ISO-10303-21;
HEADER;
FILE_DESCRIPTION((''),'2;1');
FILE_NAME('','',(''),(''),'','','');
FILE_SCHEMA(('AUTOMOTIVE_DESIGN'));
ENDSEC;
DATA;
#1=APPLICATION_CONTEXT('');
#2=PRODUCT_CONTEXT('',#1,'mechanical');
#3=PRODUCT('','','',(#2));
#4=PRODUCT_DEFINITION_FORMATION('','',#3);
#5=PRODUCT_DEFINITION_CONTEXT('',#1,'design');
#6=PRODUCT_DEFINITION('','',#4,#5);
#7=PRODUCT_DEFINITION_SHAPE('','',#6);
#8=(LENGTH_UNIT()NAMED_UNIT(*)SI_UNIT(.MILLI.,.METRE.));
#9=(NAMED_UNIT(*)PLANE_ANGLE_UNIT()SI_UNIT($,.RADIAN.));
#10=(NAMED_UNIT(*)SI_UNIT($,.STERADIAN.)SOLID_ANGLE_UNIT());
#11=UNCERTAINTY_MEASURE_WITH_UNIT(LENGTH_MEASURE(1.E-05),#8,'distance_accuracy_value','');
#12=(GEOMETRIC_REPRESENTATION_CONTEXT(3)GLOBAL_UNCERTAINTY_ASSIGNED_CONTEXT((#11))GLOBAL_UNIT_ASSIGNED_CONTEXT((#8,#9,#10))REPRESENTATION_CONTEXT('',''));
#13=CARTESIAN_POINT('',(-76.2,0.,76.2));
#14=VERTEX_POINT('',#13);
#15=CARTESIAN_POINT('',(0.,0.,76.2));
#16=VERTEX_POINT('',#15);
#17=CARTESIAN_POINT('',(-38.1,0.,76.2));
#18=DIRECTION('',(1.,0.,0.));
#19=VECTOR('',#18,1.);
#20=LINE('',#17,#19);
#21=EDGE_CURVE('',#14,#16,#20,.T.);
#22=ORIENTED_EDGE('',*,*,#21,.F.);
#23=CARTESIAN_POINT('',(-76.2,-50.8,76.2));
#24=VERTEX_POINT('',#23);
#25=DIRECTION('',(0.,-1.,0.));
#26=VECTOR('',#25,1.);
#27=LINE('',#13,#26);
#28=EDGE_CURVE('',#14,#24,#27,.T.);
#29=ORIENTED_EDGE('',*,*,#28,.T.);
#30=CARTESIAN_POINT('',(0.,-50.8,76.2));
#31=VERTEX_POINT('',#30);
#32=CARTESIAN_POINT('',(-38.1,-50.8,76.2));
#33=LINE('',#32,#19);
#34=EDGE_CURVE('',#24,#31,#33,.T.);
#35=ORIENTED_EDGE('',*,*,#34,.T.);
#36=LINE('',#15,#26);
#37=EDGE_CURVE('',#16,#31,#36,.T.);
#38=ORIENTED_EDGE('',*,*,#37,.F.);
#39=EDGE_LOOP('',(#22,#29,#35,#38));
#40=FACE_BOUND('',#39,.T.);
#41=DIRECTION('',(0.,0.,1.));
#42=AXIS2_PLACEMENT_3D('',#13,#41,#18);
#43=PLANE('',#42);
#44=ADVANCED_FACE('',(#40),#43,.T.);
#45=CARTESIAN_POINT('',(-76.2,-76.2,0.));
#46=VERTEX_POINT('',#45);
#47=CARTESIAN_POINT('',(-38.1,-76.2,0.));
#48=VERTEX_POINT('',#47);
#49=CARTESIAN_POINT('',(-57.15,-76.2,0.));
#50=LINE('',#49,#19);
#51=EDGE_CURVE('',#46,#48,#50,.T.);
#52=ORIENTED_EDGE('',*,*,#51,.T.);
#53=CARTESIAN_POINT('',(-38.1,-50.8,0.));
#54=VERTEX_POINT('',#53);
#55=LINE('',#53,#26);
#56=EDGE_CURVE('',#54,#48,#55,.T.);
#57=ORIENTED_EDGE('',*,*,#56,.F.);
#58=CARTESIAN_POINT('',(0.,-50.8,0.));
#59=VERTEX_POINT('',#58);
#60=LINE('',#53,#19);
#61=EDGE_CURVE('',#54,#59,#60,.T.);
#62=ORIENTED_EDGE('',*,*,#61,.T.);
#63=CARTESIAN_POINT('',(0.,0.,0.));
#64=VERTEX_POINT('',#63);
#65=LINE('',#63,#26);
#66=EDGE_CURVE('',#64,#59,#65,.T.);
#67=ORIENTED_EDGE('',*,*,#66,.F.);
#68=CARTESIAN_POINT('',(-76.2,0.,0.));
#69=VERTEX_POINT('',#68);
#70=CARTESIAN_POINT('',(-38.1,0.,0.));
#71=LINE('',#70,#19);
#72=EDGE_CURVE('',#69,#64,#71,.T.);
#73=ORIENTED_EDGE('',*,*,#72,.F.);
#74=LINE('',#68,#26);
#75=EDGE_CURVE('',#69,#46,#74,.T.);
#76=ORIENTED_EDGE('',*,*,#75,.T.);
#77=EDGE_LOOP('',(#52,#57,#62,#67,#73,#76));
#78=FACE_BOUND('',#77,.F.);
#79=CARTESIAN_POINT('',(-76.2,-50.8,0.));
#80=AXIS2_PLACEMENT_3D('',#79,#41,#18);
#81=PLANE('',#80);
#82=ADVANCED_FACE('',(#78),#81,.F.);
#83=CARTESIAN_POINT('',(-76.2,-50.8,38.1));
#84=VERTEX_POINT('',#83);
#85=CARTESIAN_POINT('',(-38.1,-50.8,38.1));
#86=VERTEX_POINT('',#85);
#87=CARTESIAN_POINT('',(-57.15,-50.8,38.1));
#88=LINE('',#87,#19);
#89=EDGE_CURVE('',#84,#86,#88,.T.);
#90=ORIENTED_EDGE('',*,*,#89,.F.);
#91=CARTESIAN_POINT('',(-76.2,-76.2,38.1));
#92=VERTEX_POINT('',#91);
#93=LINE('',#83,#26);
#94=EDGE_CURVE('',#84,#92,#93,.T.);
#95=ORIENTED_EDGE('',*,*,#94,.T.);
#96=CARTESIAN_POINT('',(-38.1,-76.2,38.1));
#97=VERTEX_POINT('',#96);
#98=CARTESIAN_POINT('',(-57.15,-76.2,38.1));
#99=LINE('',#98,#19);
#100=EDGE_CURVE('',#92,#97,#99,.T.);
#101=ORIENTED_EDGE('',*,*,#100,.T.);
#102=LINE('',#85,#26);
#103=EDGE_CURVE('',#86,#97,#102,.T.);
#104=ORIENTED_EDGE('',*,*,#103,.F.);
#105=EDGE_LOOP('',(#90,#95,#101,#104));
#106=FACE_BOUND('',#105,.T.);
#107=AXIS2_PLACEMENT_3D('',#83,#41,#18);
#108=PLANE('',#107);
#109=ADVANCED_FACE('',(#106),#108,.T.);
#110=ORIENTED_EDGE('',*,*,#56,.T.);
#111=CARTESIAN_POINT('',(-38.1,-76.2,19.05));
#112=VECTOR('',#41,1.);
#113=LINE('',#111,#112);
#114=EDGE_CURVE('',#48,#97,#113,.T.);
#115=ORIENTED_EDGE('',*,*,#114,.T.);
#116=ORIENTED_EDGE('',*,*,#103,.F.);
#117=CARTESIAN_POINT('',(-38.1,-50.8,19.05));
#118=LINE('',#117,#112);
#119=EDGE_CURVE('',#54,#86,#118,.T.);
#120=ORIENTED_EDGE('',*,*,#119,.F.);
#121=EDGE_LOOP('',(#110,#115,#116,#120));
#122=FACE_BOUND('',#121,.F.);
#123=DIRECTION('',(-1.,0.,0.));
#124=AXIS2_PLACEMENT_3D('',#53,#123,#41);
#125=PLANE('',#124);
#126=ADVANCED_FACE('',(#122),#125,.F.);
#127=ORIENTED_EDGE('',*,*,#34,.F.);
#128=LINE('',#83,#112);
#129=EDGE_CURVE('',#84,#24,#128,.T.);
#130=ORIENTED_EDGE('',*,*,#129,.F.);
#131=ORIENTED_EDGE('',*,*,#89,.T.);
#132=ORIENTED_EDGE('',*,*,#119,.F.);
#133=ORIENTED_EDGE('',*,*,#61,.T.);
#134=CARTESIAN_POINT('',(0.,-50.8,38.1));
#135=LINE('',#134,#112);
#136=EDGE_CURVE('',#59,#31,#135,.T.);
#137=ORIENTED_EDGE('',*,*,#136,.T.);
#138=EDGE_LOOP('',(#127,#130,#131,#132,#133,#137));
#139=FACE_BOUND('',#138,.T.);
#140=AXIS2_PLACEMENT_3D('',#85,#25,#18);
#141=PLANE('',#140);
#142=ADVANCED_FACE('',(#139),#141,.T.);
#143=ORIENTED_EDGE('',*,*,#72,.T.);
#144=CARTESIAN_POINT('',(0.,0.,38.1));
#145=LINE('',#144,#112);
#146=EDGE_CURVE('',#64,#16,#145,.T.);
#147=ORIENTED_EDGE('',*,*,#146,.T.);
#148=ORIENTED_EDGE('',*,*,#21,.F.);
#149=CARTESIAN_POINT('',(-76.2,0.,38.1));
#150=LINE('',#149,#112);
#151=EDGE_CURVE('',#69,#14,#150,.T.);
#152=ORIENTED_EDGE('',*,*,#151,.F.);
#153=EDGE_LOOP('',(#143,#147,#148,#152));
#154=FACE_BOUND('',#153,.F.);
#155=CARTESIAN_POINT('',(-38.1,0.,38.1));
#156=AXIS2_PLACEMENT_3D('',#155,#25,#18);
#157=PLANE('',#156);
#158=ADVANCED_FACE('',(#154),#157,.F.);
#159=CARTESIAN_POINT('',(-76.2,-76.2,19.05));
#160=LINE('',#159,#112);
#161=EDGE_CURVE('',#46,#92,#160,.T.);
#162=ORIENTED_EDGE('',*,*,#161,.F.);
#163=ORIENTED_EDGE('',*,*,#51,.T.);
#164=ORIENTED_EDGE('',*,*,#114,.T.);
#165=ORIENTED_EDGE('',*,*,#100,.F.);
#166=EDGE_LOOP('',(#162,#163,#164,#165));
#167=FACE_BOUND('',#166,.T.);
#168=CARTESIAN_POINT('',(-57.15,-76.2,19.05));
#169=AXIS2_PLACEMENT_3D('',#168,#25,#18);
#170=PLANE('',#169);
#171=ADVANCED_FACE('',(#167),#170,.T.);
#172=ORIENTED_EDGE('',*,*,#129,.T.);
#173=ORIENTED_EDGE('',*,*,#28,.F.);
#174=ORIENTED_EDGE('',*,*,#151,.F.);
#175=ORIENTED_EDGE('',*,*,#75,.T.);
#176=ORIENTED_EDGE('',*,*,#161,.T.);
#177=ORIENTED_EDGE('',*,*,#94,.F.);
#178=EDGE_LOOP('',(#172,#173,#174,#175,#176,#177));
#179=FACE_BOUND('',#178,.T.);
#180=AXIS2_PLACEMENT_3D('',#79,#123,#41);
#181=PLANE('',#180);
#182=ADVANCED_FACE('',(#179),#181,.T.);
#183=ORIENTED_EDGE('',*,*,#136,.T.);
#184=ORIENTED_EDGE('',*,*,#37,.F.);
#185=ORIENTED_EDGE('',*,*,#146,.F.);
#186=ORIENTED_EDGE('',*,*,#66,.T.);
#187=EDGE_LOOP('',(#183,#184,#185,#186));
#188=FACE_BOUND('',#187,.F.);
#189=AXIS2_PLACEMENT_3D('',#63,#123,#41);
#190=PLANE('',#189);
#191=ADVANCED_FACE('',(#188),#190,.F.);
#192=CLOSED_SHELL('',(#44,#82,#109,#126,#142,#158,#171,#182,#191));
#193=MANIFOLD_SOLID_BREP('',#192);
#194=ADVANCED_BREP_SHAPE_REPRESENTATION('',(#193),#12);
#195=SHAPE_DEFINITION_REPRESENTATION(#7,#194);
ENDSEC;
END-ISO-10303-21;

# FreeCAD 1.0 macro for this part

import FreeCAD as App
import Part
import Sketcher
from FreeCAD import Vector
Q = App.Units.Quantity

doc = App.newDocument("Part")
params = doc.addObject("Spreadsheet::Sheet", "Params")
for row, (alias, value) in enumerate([
    ("sketch1_width", "3 in"),
    ("pad1_length", "2 in"),
    ("sketch2_width", "1.5 in"),
    ("pad2_length", "1 in"),
], start=1):
    params.set(f"A{row}", alias)
    params.set(f"B{row}", "=" + value)
    params.setAlias(f"B{row}", alias)

body = doc.addObject("PartDesign::Body", "Body")

# Sketch on XZ plane
sketch1 = body.newObject("Sketcher::SketchObject", "Sketch")
sketch1.AttachmentSupport = (doc.getObject("XZ_Plane"), [""])
sketch1.MapMode = "FlatFace"
sketch1.addGeometry([
    Part.LineSegment(Vector(-76, 76, 0), Vector(-76, 0, 0)),
    Part.LineSegment(Vector(-76, 0, 0), Vector(0, 0, 0)),
    Part.LineSegment(Vector(0, 0, 0), Vector(0, 76, 0)),
    Part.LineSegment(Vector(0, 76, 0), Vector(-76, 76, 0)),
], False)
sketch1.addConstraint([
    Sketcher.Constraint("Coincident", 0, 2, 1, 1),
    Sketcher.Constraint("Coincident", 1, 2, 2, 1),
    Sketcher.Constraint("Coincident", 2, 2, 3, 1),
    Sketcher.Constraint("Coincident", 3, 2, 0, 1),
    Sketcher.Constraint("Vertical", 0),
    Sketcher.Constraint("Horizontal", 1),
    Sketcher.Constraint("Vertical", 2),
    Sketcher.Constraint("Horizontal", 3),
    Sketcher.Constraint("Coincident", 1, 2, -1, 1),
    Sketcher.Constraint("Equal", 3, 0),
    Sketcher.Constraint("DistanceX", 1, 1, 1, 2, Q("3 in")),
])
sketch1.setExpression("Constraints[10]", "Params.sketch1_width")
pad1 = body.newObject("PartDesign::Pad", "Pad")
pad1.Profile = sketch1
pad1.setExpression("Length", "Params.pad1_length")

# Sketch on XZ plane
sketch2 = body.newObject("Sketcher::SketchObject", "Sketch001")
sketch2.AttachmentSupport = (doc.getObject("XZ_Plane"), [""])
sketch2.MapMode = "FlatFace"
sketch2.AttachmentOffset = App.Placement(Vector(0, 0, 2 * 25.4), App.Rotation())
sketch2.addGeometry([
    Part.LineSegment(Vector(-76, 38, 0), Vector(-76, 0, 0)),
    Part.LineSegment(Vector(-76, 0, 0), Vector(-38, 0, 0)),
    Part.LineSegment(Vector(-38, 0, 0), Vector(-38, 38, 0)),
    Part.LineSegment(Vector(-38, 38, 0), Vector(-76, 38, 0)),
], False)
sketch2.addConstraint([
    Sketcher.Constraint("Coincident", 0, 2, 1, 1),
    Sketcher.Constraint("Coincident", 1, 2, 2, 1),
    Sketcher.Constraint("Coincident", 2, 2, 3, 1),
    Sketcher.Constraint("Coincident", 3, 2, 0, 1),
    Sketcher.Constraint("Vertical", 0),
    Sketcher.Constraint("Horizontal", 1),
    Sketcher.Constraint("Vertical", 2),
    Sketcher.Constraint("Horizontal", 3),
    Sketcher.Constraint("PointOnObject", 0, 2, -1),
    Sketcher.Constraint("Equal", 3, 0),
    Sketcher.Constraint("DistanceX", 1, 1, 1, 2, Q("1.5 in")),
    Sketcher.Constraint("DistanceX", 0, 2, -1, 1, Q("3 in")),
])
sketch2.setExpression("Constraints[10]", "Params.sketch2_width")
pad2 = body.newObject("PartDesign::Pad", "Pad001")
pad2.Profile = sketch2
pad2.setExpression("Length", "Params.pad2_length")

doc.recompute()
